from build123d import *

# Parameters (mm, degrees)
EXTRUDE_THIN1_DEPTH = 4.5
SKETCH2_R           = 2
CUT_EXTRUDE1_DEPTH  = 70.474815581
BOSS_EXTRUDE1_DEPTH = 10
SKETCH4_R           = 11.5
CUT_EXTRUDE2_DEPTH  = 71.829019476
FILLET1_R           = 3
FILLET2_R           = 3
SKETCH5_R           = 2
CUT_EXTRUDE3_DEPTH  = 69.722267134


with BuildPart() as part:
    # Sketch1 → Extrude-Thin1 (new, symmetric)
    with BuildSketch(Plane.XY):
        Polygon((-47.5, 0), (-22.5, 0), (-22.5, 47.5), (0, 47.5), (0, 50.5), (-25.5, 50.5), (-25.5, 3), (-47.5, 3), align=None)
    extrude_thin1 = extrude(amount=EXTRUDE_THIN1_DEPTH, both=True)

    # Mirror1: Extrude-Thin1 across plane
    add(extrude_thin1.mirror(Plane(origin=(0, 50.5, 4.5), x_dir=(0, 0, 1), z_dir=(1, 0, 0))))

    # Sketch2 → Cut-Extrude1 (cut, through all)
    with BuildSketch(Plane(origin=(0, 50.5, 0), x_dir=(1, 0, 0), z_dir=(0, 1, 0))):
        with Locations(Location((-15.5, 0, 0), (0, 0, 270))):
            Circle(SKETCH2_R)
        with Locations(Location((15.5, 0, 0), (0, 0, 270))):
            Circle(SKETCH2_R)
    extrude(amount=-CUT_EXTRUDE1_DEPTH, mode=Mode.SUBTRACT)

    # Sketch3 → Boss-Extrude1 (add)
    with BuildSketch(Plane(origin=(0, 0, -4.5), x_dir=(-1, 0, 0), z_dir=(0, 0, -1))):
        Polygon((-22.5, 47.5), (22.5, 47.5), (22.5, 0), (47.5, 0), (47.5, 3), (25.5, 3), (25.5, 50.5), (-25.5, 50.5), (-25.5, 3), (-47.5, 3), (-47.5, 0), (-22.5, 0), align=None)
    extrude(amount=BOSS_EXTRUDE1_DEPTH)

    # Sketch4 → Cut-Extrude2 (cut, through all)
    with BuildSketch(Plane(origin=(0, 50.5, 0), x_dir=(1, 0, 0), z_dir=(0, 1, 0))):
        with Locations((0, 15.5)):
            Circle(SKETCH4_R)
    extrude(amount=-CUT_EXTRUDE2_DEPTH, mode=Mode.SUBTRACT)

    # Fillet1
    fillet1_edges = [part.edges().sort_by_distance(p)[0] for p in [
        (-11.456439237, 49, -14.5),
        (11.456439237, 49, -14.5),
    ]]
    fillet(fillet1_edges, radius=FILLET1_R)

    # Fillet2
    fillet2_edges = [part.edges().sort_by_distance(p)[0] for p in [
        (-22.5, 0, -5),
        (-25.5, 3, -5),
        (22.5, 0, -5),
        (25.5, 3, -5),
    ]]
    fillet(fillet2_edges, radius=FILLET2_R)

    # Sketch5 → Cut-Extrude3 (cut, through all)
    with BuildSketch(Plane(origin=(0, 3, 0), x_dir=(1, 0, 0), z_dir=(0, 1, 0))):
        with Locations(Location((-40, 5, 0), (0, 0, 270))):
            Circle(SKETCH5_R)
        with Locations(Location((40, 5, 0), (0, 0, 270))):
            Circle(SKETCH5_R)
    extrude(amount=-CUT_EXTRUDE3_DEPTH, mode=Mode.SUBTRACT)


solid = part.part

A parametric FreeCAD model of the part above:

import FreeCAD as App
import Part
import Sketcher
from FreeCAD import Vector
Q = App.Units.Quantity


def edges_at(feature, points):
    """Names of the edges that pass closest to the given points."""
    edges = feature.Shape.Edges
    near = lambda p: min(range(len(edges)), key=lambda i: edges[i].distToShape(Part.Vertex(*p))[0])
    return sorted({f"Edge{near(p) + 1}" for p in points})


def add_polygon(sketch, points):
    """Adds a closed chain of lines whose ends are joined by coincident constraints."""
    first, n = sketch.GeometryCount, len(points)
    for a, b in zip(points, points[1:] + points[:1]):
        sketch.addGeometry(Part.LineSegment(App.Vector(*a, 0), App.Vector(*b, 0)), False)
    for i in range(n):
        sketch.addConstraint(Sketcher.Constraint("Coincident", first + i, 2, first + (i + 1) % n, 1))

doc = App.newDocument("Part")
body = doc.addObject("PartDesign::Body", "Body")

sketch1 = body.newObject("Sketcher::SketchObject", "Sketch")
sketch1.AttachmentSupport = (doc.getObject("XY_Plane"), [""])
sketch1.MapMode = "FlatFace"
add_polygon(sketch1, [(-47.5, 0), (-22.5, 0), (-22.5, 47.5), (0, 47.5), (0, 50.5), (-25.5, 50.5), (-25.5, 3), (-47.5, 3)])
sketch1.addConstraint(Sketcher.Constraint("Horizontal", 0))
sketch1.addConstraint(Sketcher.Constraint("Vertical", 1))
sketch1.addConstraint(Sketcher.Constraint("Horizontal", 2))
sketch1.addConstraint(Sketcher.Constraint("Vertical", 3))
sketch1.addConstraint(Sketcher.Constraint("Horizontal", 4))
sketch1.addConstraint(Sketcher.Constraint("Vertical", 5))
sketch1.addConstraint(Sketcher.Constraint("Horizontal", 6))
sketch1.addConstraint(Sketcher.Constraint("Vertical", 7))
sketch1.addConstraint(Sketcher.Constraint("PointOnObject", 0, 2, -1))
sketch1.addConstraint(Sketcher.Constraint("PointOnObject", 2, 2, -2))
sketch1.addConstraint(Sketcher.Constraint("Equal", 1, 5))
sketch1.addConstraint(Sketcher.Constraint("DistanceX", 0, 1, 0, 2, Q("25 mm")))
sketch1.addConstraint(Sketcher.Constraint("DistanceX", 6, 2, 6, 1, Q("22 mm")))
sketch1.addConstraint(Sketcher.Constraint("DistanceY", 3, 1, 3, 2, Q("3 mm")))
sketch1.addConstraint(Sketcher.Constraint("DistanceX", 2, 1, 2, 2, Q("22.5 mm")))
sketch1.addConstraint(Sketcher.Constraint("DistanceY", 1, 1, 1, 2, Q("47.5 mm")))
pad1 = body.newObject("PartDesign::Pad", "Pad")
pad1.Profile = sketch1
pad1.Length = 9
pad1.Midplane = True
doc.recompute()

mirrored = body.newObject("PartDesign::Mirrored", "Mirrored")
mirrored.Originals = [pad1]
mirrored.MirrorPlane = (doc.getObject("YZ_Plane"), [""])
body.Tip = mirrored

sketch2 = body.newObject("Sketcher::SketchObject", "Sketch001")
sketch2.AttachmentSupport = (doc.getObject("XZ_Plane"), [""])
sketch2.MapMode = "FlatFace"
sketch2.AttachmentOffset = App.Placement(Vector(0, 0, -50.5), App.Rotation())
sketch2.addGeometry(Part.Circle(Vector(-15.5, 0, 0), Vector(0, 0, 1), 2), False)
sketch2.addGeometry(Part.Circle(Vector(15.5, 0, 0), Vector(0, 0, 1), 2), False)
sketch2.addConstraint(Sketcher.Constraint("Equal", 0, 1))
sketch2.addConstraint(Sketcher.Constraint("Symmetric", 0, 3, 1, 3, -1, 1))
sketch2.addConstraint(Sketcher.Constraint("PointOnObject", 0, 3, -1))
sketch2.addConstraint(Sketcher.Constraint("Diameter", 0, Q("4 mm")))
sketch2.addConstraint(Sketcher.Constraint("DistanceX", 0, 3, 1, 3, Q("31 mm")))
pocket1 = body.newObject("PartDesign::Pocket", "Pocket")
pocket1.Profile = sketch2
pocket1.Type = "ThroughAll"
pocket1.Reversed = True

sketch3 = body.newObject("Sketcher::SketchObject", "Sketch002")
sketch3.AttachmentSupport = (doc.getObject("XY_Plane"), [""])
sketch3.MapMode = "FlatFace"
sketch3.AttachmentOffset = App.Placement(Vector(0, 0, -4.5), App.Rotation())
add_polygon(sketch3, [(22.5, 47.5), (-22.5, 47.5), (-22.5, 0), (-47.5, 0), (-47.5, 3), (-25.5, 3), (-25.5, 50.5), (25.5, 50.5), (25.5, 3), (47.5, 3), (47.5, 0), (22.5, 0)])
sketch3.addConstraint(Sketcher.Constraint("Horizontal", 0))
sketch3.addConstraint(Sketcher.Constraint("Vertical", 1))
sketch3.addConstraint(Sketcher.Constraint("Horizontal", 2))
sketch3.addConstraint(Sketcher.Constraint("Vertical", 3))
sketch3.addConstraint(Sketcher.Constraint("Horizontal", 4))
sketch3.addConstraint(Sketcher.Constraint("Vertical", 5))
sketch3.addConstraint(Sketcher.Constraint("Horizontal", 6))
sketch3.addConstraint(Sketcher.Constraint("Vertical", 7))
sketch3.addConstraint(Sketcher.Constraint("Horizontal", 8))
sketch3.addConstraint(Sketcher.Constraint("Vertical", 9))
sketch3.addConstraint(Sketcher.Constraint("Horizontal", 10))
sketch3.addConstraint(Sketcher.Constraint("Vertical", 11))
sketch3.addConstraint(Sketcher.Constraint("Symmetric", 2, 2, 9, 2, -1, 1))
sketch3.addConstraint(Sketcher.Constraint("Symmetric", 4, 2, 7, 2, -2))
sketch3.addConstraint(Sketcher.Constraint("Symmetric", 1, 2, 10, 2, -2))
sketch3.addConstraint(Sketcher.Constraint("Equal", 1, 5))
sketch3.addConstraint(Sketcher.Constraint("DistanceX", 0, 2, 0, 1, Q("45 mm")))
sketch3.addConstraint(Sketcher.Constraint("DistanceX", 2, 2, 2, 1, Q("25 mm")))
sketch3.addConstraint(Sketcher.Constraint("DistanceX", 4, 1, 4, 2, Q("22 mm")))
sketch3.addConstraint(Sketcher.Constraint("DistanceY", 3, 1, 3, 2, Q("3 mm")))
sketch3.addConstraint(Sketcher.Constraint("DistanceY", 1, 2, 1, 1, Q("47.5 mm")))
pad2 = body.newObject("PartDesign::Pad", "Pad001")
pad2.Profile = sketch3
pad2.Length = 10
pad2.Reversed = True

sketch4 = body.newObject("Sketcher::SketchObject", "Sketch003")
sketch4.AttachmentSupport = (doc.getObject("XZ_Plane"), [""])
sketch4.MapMode = "FlatFace"
sketch4.AttachmentOffset = App.Placement(Vector(0, 0, -50.5), App.Rotation())
sketch4.addGeometry(Part.Circle(Vector(0, -16, 0), Vector(0, 0, 1), 12), False)
sketch4.addConstraint(Sketcher.Constraint("PointOnObject", 0, 3, -2))
sketch4.addConstraint(Sketcher.Constraint("Diameter", 0, Q("23 mm")))
sketch4.addConstraint(Sketcher.Constraint("DistanceY", 0, 3, -1, 1, Q("15.5 mm")))
pocket2 = body.newObject("PartDesign::Pocket", "Pocket001")
pocket2.Profile = sketch4
pocket2.Type = "ThroughAll"
pocket2.Reversed = True
doc.recompute()

fillet = body.newObject("PartDesign::Fillet", "Fillet")
fillet.Base = (pocket2, edges_at(pocket2, [(-11.456, 49, -14.5), (11.456, 49, -14.5)]))
fillet.Radius = 3
doc.recompute()

fillet2 = body.newObject("PartDesign::Fillet", "Fillet001")
fillet2.Base = (fillet, edges_at(fillet, [
    (-22.5, 0, -5),
    (-25.5, 3, -5),
    (22.5, 0, -5),
    (25.5, 3, -5),
]))
fillet2.Radius = 3

sketch5 = body.newObject("Sketcher::SketchObject", "Sketch004")
sketch5.AttachmentSupport = (doc.getObject("XZ_Plane"), [""])
sketch5.MapMode = "FlatFace"
sketch5.AttachmentOffset = App.Placement(Vector(0, 0, -3), App.Rotation())
sketch5.addGeometry(Part.Circle(Vector(-40, -5, 0), Vector(0, 0, 1), 2), False)
sketch5.addGeometry(Part.Circle(Vector(40, -5, 0), Vector(0, 0, 1), 2), False)
sketch5.addConstraint(Sketcher.Constraint("Equal", 0, 1))
sketch5.addConstraint(Sketcher.Constraint("Symmetric", 0, 3, 1, 3, -2))
sketch5.addConstraint(Sketcher.Constraint("Diameter", 0, Q("4 mm")))
sketch5.addConstraint(Sketcher.Constraint("DistanceX", 0, 3, -1, 1, Q("40 mm")))
sketch5.addConstraint(Sketcher.Constraint("DistanceY", 0, 3, -1, 1, Q("5 mm")))
pocket3 = body.newObject("PartDesign::Pocket", "Pocket002")
pocket3.Profile = sketch5
pocket3.Type = "ThroughAll"
pocket3.Reversed = True

doc.recompute()
